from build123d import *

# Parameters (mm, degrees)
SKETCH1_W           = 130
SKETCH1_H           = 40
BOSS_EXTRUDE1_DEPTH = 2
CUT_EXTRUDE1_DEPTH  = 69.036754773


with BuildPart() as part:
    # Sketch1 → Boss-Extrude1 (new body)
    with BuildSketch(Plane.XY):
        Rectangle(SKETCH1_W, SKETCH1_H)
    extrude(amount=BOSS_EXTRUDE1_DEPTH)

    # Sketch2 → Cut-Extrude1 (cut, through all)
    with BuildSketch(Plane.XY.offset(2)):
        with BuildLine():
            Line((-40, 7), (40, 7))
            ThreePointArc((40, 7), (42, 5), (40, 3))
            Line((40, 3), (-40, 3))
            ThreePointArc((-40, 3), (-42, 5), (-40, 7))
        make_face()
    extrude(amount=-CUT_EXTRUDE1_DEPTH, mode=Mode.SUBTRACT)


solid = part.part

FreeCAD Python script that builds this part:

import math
import FreeCAD as App
import Part
import Sketcher

V = App.Vector

doc = App.newDocument("Part")
params = doc.addObject("Spreadsheet::Sheet", "Params")
for row, (alias, value) in enumerate([
    ("sketch1_width", "130 mm"),
    ("sketch1_height", "40 mm"),
    ("pad1_length", "2 mm"),
    ("sketch2_radius", "2 mm"),
    ("sketch2_width", "80 mm"),
], start=1):
    params.set(f"A{row}", alias)
    params.set(f"B{row}", "=" + value)
    params.setAlias(f"B{row}", alias)

body = doc.addObject("PartDesign::Body", "Body")

# Sketch on XY plane
sketch1 = body.newObject("Sketcher::SketchObject", "Sketch")
sketch1.AttachmentSupport = (doc.getObject("XY_Plane"), [""])
sketch1.MapMode = "FlatFace"
sketch1.addGeometry([
    Part.LineSegment(V(-65, 20, 0), V(-65, -20, 0)),
    Part.LineSegment(V(-65, -20, 0), V(65, -20, 0)),
    Part.LineSegment(V(65, -20, 0), V(65, 20, 0)),
    Part.LineSegment(V(65, 20, 0), V(-65, 20, 0)),
], False)
sketch1.addConstraint([
    Sketcher.Constraint("Coincident", 0, 2, 1, 1),
    Sketcher.Constraint("Coincident", 1, 2, 2, 1),
    Sketcher.Constraint("Coincident", 2, 2, 3, 1),
    Sketcher.Constraint("Coincident", 3, 2, 0, 1),
    Sketcher.Constraint("Vertical", 0),
    Sketcher.Constraint("Horizontal", 1),
    Sketcher.Constraint("Vertical", 2),
    Sketcher.Constraint("Horizontal", 3),
    Sketcher.Constraint("Symmetric", 0, 2, 2, 2, -1, 1),
    Sketcher.Constraint("DistanceX", 1, 1, 1, 2, 130.0),
    Sketcher.Constraint("DistanceY", 0, 2, 0, 1, 40.0),
])
sketch1.setExpression("Constraints[9]", "Params.sketch1_width")
sketch1.setExpression("Constraints[10]", "Params.sketch1_height")
pad1 = body.newObject("PartDesign::Pad", "Pad")
pad1.Profile = sketch1
pad1.setExpression("Length", "Params.pad1_length")

# Sketch on XY plane
sketch2 = body.newObject("Sketcher::SketchObject", "Sketch001")
sketch2.AttachmentSupport = (doc.getObject("XY_Plane"), [""])
sketch2.MapMode = "FlatFace"
sketch2.AttachmentOffset = App.Placement(V(0, 0, 2), App.Rotation())
sketch2.addGeometry([
    Part.LineSegment(V(40, 7, 0), V(-40, 7, 0)),
    Part.ArcOfCircle(Part.Circle(V(-40, 5, 0), V(0, 0, 1), 2), math.radians(90), math.radians(270)),
    Part.LineSegment(V(-40, 3, 0), V(40, 3, 0)),
    Part.ArcOfCircle(Part.Circle(V(40, 5, 0), V(0, 0, 1), 2), math.radians(-90), math.radians(90)),
], False)
sketch2.addConstraint([
    Sketcher.Constraint("Tangent", 0, 2, 1, 1),
    Sketcher.Constraint("Tangent", 1, 2, 2, 1),
    Sketcher.Constraint("Tangent", 2, 2, 3, 1),
    Sketcher.Constraint("Tangent", 3, 2, 0, 1),
    Sketcher.Constraint("Horizontal", 0),
    Sketcher.Constraint("Horizontal", 2),
    Sketcher.Constraint("Radius", 1, 2.0),
    Sketcher.Constraint("DistanceX", 0, 2, 0, 1, 80.0),
    Sketcher.Constraint("DistanceX", 1, 3, -1, 1, 40.0),
    Sketcher.Constraint("DistanceY", -1, 1, 1, 3, 5.0),
])
sketch2.setExpression("Constraints[6]", "Params.sketch2_radius")
sketch2.setExpression("Constraints[7]", "Params.sketch2_width")
pocket1 = body.newObject("PartDesign::Pocket", "Pocket")
pocket1.Profile = sketch2
pocket1.Type = "ThroughAll"

doc.recompute()
